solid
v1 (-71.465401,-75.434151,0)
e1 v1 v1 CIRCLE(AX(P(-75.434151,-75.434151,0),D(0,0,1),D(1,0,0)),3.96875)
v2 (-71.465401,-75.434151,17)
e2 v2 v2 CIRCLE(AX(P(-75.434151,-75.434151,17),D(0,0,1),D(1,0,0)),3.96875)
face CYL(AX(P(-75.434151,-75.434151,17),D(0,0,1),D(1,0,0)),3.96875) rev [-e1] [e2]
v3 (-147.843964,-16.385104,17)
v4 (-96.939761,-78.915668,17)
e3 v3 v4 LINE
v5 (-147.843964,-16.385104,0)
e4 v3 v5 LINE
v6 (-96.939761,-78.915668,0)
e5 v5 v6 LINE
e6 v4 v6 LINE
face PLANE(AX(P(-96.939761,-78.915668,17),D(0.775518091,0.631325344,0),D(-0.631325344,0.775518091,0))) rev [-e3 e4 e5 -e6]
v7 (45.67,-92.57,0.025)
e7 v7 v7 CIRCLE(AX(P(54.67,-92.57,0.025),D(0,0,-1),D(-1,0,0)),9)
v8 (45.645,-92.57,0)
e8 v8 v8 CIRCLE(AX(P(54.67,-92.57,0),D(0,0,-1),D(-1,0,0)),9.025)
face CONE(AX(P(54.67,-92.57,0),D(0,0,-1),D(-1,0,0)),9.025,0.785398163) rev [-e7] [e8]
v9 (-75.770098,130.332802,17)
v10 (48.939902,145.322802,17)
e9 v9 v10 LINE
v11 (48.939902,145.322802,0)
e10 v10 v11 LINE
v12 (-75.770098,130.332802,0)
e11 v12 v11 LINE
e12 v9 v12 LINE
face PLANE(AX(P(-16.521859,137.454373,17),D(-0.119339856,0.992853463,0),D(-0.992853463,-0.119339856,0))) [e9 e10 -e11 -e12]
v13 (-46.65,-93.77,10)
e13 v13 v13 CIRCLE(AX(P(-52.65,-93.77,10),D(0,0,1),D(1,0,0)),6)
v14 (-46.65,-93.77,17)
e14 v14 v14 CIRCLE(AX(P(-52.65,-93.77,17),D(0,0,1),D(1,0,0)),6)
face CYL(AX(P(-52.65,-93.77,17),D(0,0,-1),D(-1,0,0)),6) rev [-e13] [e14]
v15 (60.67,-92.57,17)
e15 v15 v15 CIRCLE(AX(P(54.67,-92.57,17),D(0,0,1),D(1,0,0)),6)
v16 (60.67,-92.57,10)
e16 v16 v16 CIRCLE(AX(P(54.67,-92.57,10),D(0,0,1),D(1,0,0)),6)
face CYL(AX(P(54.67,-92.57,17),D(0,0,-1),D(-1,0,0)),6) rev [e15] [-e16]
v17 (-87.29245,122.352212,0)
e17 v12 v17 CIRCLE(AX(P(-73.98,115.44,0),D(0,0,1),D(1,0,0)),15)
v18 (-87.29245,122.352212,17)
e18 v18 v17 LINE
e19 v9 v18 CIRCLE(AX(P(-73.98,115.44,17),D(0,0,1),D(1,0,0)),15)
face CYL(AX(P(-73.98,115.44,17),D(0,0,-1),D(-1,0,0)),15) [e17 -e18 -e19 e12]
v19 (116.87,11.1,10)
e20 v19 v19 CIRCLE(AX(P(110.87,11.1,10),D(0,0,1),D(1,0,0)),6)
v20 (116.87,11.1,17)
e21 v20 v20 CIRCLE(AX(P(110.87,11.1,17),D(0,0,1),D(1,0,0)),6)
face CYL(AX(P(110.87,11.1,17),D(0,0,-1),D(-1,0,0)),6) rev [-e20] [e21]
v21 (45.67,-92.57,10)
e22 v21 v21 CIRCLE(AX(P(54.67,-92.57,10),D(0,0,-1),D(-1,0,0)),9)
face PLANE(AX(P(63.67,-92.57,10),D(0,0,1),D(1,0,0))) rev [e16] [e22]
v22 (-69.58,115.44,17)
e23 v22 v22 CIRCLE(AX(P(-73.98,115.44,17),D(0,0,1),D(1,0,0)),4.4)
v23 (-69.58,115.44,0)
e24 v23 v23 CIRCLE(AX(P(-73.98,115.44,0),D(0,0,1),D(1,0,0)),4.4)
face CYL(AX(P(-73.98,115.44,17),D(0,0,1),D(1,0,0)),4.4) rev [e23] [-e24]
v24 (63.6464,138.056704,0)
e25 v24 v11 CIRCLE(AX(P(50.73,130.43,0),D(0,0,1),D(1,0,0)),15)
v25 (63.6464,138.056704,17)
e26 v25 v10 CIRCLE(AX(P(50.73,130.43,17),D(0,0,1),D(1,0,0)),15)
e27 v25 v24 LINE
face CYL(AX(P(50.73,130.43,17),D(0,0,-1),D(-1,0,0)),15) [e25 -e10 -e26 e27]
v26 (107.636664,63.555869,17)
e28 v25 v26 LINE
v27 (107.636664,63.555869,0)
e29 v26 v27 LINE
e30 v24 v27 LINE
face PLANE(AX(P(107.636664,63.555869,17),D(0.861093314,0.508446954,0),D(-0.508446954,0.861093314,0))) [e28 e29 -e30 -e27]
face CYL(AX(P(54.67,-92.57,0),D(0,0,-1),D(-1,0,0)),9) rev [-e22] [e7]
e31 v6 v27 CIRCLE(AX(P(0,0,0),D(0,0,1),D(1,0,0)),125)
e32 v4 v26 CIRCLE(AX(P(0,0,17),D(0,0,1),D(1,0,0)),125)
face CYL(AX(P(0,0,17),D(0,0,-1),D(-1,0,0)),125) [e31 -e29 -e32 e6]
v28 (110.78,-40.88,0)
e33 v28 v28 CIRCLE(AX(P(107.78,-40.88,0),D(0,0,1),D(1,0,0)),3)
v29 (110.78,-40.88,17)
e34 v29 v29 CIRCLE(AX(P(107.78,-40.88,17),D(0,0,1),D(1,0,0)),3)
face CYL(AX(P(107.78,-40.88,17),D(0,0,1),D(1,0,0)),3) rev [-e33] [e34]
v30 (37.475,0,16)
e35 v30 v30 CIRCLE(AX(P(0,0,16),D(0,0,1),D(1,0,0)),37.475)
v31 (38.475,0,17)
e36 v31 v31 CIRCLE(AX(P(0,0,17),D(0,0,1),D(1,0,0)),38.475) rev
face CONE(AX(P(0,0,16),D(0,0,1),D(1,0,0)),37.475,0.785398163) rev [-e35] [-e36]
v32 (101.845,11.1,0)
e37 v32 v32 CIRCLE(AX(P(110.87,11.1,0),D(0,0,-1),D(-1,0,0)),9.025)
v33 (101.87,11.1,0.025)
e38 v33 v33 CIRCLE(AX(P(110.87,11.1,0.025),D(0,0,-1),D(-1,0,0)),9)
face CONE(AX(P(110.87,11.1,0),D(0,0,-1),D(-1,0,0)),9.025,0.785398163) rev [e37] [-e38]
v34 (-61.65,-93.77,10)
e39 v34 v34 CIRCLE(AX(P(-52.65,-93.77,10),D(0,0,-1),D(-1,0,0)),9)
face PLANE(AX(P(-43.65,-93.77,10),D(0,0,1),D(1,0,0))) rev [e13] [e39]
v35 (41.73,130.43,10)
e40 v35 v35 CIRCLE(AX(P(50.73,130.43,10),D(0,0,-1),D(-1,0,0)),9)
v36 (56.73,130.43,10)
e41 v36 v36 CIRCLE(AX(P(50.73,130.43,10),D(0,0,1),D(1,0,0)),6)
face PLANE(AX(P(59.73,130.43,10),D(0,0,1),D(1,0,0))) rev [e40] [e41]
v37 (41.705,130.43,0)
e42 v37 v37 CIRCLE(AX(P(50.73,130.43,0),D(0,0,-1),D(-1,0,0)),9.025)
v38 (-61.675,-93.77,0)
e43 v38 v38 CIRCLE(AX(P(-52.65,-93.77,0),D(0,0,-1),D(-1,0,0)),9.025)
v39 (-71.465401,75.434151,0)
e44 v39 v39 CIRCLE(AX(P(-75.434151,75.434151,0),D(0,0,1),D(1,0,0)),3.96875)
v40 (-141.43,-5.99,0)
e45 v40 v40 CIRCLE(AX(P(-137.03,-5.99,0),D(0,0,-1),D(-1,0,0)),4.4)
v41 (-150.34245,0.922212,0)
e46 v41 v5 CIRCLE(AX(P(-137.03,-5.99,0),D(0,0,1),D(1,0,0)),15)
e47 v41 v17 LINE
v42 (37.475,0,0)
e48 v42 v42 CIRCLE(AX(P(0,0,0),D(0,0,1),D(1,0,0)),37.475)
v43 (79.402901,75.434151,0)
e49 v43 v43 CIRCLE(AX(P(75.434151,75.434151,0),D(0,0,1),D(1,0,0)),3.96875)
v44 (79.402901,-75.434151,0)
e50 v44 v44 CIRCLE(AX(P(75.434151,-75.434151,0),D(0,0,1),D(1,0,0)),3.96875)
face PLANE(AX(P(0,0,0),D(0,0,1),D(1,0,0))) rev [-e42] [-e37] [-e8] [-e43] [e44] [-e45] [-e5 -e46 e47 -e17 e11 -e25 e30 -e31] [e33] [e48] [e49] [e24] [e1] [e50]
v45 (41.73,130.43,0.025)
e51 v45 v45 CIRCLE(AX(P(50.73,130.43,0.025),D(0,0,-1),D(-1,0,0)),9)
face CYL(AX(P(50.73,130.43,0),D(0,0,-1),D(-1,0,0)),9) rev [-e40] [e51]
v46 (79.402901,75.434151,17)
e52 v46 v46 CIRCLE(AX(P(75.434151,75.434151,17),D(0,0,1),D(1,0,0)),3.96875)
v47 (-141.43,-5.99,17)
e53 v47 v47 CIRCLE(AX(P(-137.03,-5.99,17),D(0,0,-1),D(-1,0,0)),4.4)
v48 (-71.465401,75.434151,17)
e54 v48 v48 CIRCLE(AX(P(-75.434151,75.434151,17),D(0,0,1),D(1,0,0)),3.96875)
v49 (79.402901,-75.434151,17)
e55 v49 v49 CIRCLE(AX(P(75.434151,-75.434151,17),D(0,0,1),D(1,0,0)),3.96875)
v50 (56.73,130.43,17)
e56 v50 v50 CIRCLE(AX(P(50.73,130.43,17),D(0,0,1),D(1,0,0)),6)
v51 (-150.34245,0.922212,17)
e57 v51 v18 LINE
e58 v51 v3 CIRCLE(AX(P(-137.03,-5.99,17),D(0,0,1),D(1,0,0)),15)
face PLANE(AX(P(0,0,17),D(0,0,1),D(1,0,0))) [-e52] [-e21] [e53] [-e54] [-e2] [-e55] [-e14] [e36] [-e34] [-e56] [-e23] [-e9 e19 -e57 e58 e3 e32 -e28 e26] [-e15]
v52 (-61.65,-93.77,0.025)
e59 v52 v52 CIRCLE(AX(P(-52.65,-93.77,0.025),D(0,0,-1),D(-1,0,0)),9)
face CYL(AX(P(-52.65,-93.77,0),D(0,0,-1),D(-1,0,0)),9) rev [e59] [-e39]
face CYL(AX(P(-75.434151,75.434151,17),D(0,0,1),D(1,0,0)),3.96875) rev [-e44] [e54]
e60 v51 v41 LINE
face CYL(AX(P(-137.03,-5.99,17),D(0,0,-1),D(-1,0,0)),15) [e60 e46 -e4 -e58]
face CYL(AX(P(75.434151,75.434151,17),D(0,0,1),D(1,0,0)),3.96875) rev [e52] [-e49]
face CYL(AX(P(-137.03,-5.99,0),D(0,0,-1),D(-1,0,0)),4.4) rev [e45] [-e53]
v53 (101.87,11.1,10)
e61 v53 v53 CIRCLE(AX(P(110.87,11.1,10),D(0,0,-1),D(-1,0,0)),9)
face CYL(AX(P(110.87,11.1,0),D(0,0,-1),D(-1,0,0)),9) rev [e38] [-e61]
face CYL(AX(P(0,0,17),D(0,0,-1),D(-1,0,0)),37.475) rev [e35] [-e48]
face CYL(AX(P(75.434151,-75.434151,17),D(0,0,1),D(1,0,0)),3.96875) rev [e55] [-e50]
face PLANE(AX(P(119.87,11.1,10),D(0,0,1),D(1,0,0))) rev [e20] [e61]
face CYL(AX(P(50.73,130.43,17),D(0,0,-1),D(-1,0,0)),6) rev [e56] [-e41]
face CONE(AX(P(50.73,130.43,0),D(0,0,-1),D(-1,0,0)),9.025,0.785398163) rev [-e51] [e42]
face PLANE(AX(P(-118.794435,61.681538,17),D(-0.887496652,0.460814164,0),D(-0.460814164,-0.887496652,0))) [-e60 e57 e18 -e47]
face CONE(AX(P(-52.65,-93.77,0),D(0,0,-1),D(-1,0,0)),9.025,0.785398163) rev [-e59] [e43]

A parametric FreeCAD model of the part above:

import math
import FreeCAD as App
import Part
import Sketcher

V = App.Vector
Q = App.Units.Quantity


def edges_at(feature, points):
    """Names of the edges that pass closest to the given points."""
    edges = feature.Shape.Edges
    near = lambda p: min(range(len(edges)), key=lambda i: edges[i].distToShape(Part.Vertex(*p))[0])
    return sorted({f"Edge{near(p) + 1}" for p in points})

doc = App.newDocument("Part")
body = doc.addObject("PartDesign::Body", "Body")

# Sketch on XY plane
sketch1 = body.newObject("Sketcher::SketchObject", "Sketch")
sketch1.AttachmentSupport = (doc.getObject("XY_Plane"), [""])
sketch1.MapMode = "FlatFace"
sketch1.addGeometry([
    Part.LineSegment(V(-147.8, -16.4, 0), V(-96.9, -78.9, 0)),  # 0
    Part.ArcOfCircle(Part.Circle(V(0, 0, 0), V(0, 0, 1), 125), math.radians(-141), math.radians(31)),  # 1
    Part.LineSegment(V(107.6, 63.6, 0), V(63.6, 138.1, 0)),  # 2
    Part.ArcOfCircle(Part.Circle(V(50.7, 130.4, 0), V(0, 0, 1), 15), math.radians(31), math.radians(97)),  # 3
    Part.LineSegment(V(48.9, 145.3, 0), V(-75.8, 130.3, 0)),  # 4
    Part.ArcOfCircle(Part.Circle(V(-74, 115.4, 0), V(0, 0, 1), 15), math.radians(97), math.radians(153)),  # 5
    Part.LineSegment(V(-87.3, 122.4, 0), V(-150.3, 0.9, 0)),  # 6
    Part.ArcOfCircle(Part.Circle(V(-137, -6, 0), V(0, 0, 1), 15), math.radians(153), math.radians(224)),  # 7
    Part.Circle(V(-52.6, -93.8, 0), V(0, 0, 1), 6),  # 8
    Part.Circle(V(-137, -6, 0), V(0, 0, 1), 4),  # 9
    Part.Circle(V(54.7, -92.6, 0), V(0, 0, 1), 6),  # 10
    Part.Circle(V(107.8, -40.9, 0), V(0, 0, 1), 1.7),  # 11
    Part.Circle(V(0, 0, 0), V(0, 0, 1), 37.5),  # 12
    Part.Circle(V(110.9, 11.1, 0), V(0, 0, 1), 6),  # 13
    Part.Circle(V(-74, 115.4, 0), V(0, 0, 1), 4),  # 14
    Part.Circle(V(50.7, 130.4, 0), V(0, 0, 1), 6),  # 15
], False)
sketch1.addConstraint([
    Sketcher.Constraint("Tangent", 0, 2, 1, 1),
    Sketcher.Constraint("Tangent", 1, 2, 2, 1),
    Sketcher.Constraint("Tangent", 2, 2, 3, 1),
    Sketcher.Constraint("Tangent", 3, 2, 4, 1),
    Sketcher.Constraint("Tangent", 4, 2, 5, 1),
    Sketcher.Constraint("Tangent", 5, 2, 6, 1),
    Sketcher.Constraint("Tangent", 6, 2, 7, 1),
    Sketcher.Constraint("Coincident", 7, 2, 0, 1),
    Sketcher.Constraint("Coincident", 1, 3, -1, 1),
    Sketcher.Constraint("Coincident", 12, 3, -1, 1),
    Sketcher.Constraint("Coincident", 9, 3, 7, 3),
    Sketcher.Constraint("Coincident", 14, 3, 5, 3),
    Sketcher.Constraint("Coincident", 15, 3, 3, 3),
    Sketcher.Constraint("Equal", 3, 5),
    Sketcher.Constraint("Equal", 5, 7),
    Sketcher.Constraint("Equal", 8, 10),
    Sketcher.Constraint("Equal", 10, 13),
    Sketcher.Constraint("Equal", 9, 14),
    Sketcher.Constraint("Equal", 13, 15),
    Sketcher.Constraint("Diameter", 8, Q("12 mm")),
    Sketcher.Constraint("Diameter", 9, Q("8 mm")),
    Sketcher.Constraint("Radius", 1, Q("125 mm")),
    Sketcher.Constraint("Radius", 3, Q("15 mm")),
    Sketcher.Constraint("Diameter", 12, Q("74.95 mm")),
    Sketcher.Constraint("DistanceY", 10, 3, 3, 3, Q("223 mm")),
    Sketcher.Constraint("DistanceY", -1, 1, 13, 3, Q("11.1 mm")),
    Sketcher.Constraint("DistanceY", 8, 3, 3, 3, Q("224.2 mm")),
    Sketcher.Constraint("DistanceX", 7, 3, 10, 3, Q("191.7 mm")),
    Sketcher.Constraint("DistanceX", 10, 3, 13, 3, Q("56.2 mm")),
    Sketcher.Constraint("DistanceX", -1, 1, 3, 3, Q("50.73 mm")),
    Sketcher.Constraint("DistanceY", -1, 1, 3, 3, Q("130.43 mm")),
    Sketcher.Constraint("DistanceX", 5, 3, -1, 1, Q("73.98 mm")),
    Sketcher.Constraint("DistanceY", -1, 1, 5, 3, Q("115.44 mm")),
    Sketcher.Constraint("DistanceX", 7, 3, -1, 1, Q("137.03 mm")),
    Sketcher.Constraint("DistanceY", 7, 3, -1, 1, Q("5.99 mm")),
    Sketcher.Constraint("DistanceX", 8, 3, -1, 1, Q("52.65 mm")),
    Sketcher.Constraint("DistanceX", -1, 1, 11, 3, Q("107.78 mm")),
    Sketcher.Constraint("DistanceY", 11, 3, -1, 1, Q("40.88 mm")),
    Sketcher.Constraint("Diameter", 11, Q("3.375808 mm")),
    Sketcher.Constraint("DistanceX", 0, 2, -1, 1, Q("96.939761 mm")),
])
pad1 = body.newObject("PartDesign::Pad", "Pad")
pad1.Profile = sketch1
pad1.Length = 17

# Sketch on XY plane
sketch2 = body.newObject("Sketcher::SketchObject", "Sketch001")
sketch2.AttachmentSupport = (doc.getObject("XY_Plane"), [""])
sketch2.MapMode = "FlatFace"
sketch2.AttachmentOffset = App.Placement(V(0, 0, 17), App.Rotation())
sketch2.addGeometry(Part.Circle(V(-74, 115.4, 0), V(0, 0, 1), 4.4), False)
sketch2.addConstraint([
    Sketcher.Constraint("Diameter", 0, Q("8.8 mm")),
    Sketcher.Constraint("DistanceX", 0, 3, -1, 1, Q("73.98 mm")),
    Sketcher.Constraint("DistanceY", -1, 1, 0, 3, Q("115.44 mm")),
])
doc.recompute()
hole = body.newObject("PartDesign::Hole", "Hole")
hole.Profile = sketch2
hole.ThreadType = "None"
hole.Diameter = 8.8
hole.DepthType = "ThroughAll"

# Sketch on XY plane
sketch3 = body.newObject("Sketcher::SketchObject", "Sketch002")
sketch3.AttachmentSupport = (doc.getObject("XY_Plane"), [""])
sketch3.MapMode = "FlatFace"
sketch3.addGeometry(Part.Circle(V(-137, -6, 0), V(0, 0, 1), 4.4), False)
sketch3.addConstraint([
    Sketcher.Constraint("Diameter", 0, Q("8.8 mm")),
    Sketcher.Constraint("DistanceX", 0, 3, -1, 1, Q("137.03 mm")),
    Sketcher.Constraint("DistanceY", 0, 3, -1, 1, Q("5.99 mm")),
])
doc.recompute()
hole2 = body.newObject("PartDesign::Hole", "Hole001")
hole2.Profile = sketch3
hole2.ThreadType = "None"
hole2.Diameter = 8.8
hole2.DepthType = "ThroughAll"
hole2.Reversed = True

# Sketch on XY plane
sketch4 = body.newObject("Sketcher::SketchObject", "Sketch003")
sketch4.AttachmentSupport = (doc.getObject("XY_Plane"), [""])
sketch4.MapMode = "FlatFace"
sketch4.AttachmentOffset = App.Placement(V(0, 0, 17), App.Rotation())
sketch4.addGeometry(Part.Circle(V(107.8, -40.9, 0), V(0, 0, 1), 3), False)
sketch4.addConstraint([
    Sketcher.Constraint("Diameter", 0, Q("6 mm")),
    Sketcher.Constraint("DistanceX", -1, 1, 0, 3, Q("107.78 mm")),
    Sketcher.Constraint("DistanceY", 0, 3, -1, 1, Q("40.88 mm")),
])
doc.recompute()
hole3 = body.newObject("PartDesign::Hole", "Hole002")
hole3.Profile = sketch4
hole3.ThreadType = "None"
hole3.Diameter = 6
hole3.DepthType = "ThroughAll"

# Sketch on XY plane
sketch5 = body.newObject("Sketcher::SketchObject", "Sketch004")
sketch5.AttachmentSupport = (doc.getObject("XY_Plane"), [""])
sketch5.MapMode = "FlatFace"
sketch5.AttachmentOffset = App.Placement(V(0, 0, 17), App.Rotation())
sketch5.addGeometry([
    Part.Circle(V(-75.4, 75.4, 0), V(0, 0, 1), 4),
    Part.Circle(V(-75.4, -75.4, 0), V(0, 0, 1), 4),
    Part.Circle(V(75.4, -75.4, 0), V(0, 0, 1), 4),
    Part.Circle(V(75.4, 75.4, 0), V(0, 0, 1), 4),
], False)
sketch5.addConstraint([
    Sketcher.Constraint("Equal", 0, 1),
    Sketcher.Constraint("Equal", 1, 2),
    Sketcher.Constraint("Equal", 2, 3),
    Sketcher.Constraint("Symmetric", 0, 3, 2, 3, -1, 1),
    Sketcher.Constraint("Symmetric", 1, 3, 3, 3, -1, 1),
    Sketcher.Constraint("Symmetric", 1, 3, 2, 3, -2),
    Sketcher.Constraint("Diameter", 0, Q("7.9375 mm")),
    Sketcher.Constraint("DistanceX", 0, 3, -1, 1, Q("75.434151 mm")),
    Sketcher.Constraint("DistanceY", -1, 1, 0, 3, Q("75.434151 mm")),
])
doc.recompute()
hole4 = body.newObject("PartDesign::Hole", "Hole003")
hole4.Profile = sketch5
hole4.ThreadType = "None"
hole4.Diameter = 7.9375
hole4.DepthType = "ThroughAll"
doc.recompute()

chamfer = body.newObject("PartDesign::Chamfer", "Chamfer")
chamfer.Base = (hole4, edges_at(hole4, [(-37.475, 0, 17)]))
chamfer.Size = 1

# Sketch on YZ plane
sketch6 = body.newObject("Sketcher::SketchObject", "Sketch005")
sketch6.AttachmentSupport = (doc.getObject("YZ_Plane"), [""])
sketch6.MapMode = "FlatFace"
sketch6.AttachmentOffset = App.Placement(V(0, 0, 50.73), App.Rotation())
sketch6.addGeometry([
    Part.LineSegment(V(130.43, 17, 0), V(130.43, 0, 0)),  # 0
    Part.LineSegment(V(130.43, 0, 0), V(139.455, 0, 0)),  # 1
    Part.LineSegment(V(139.455, 0, 0), V(139.43, 0.025, 0)),  # 2
    Part.LineSegment(V(139.43, 0.025, 0), V(139.43, 10, 0)),  # 3
    Part.LineSegment(V(139.43, 10, 0), V(135.68, 10, 0)),  # 4
    Part.LineSegment(V(135.68, 10, 0), V(135.68, 17, 0)),  # 5
    Part.LineSegment(V(135.68, 17, 0), V(130.43, 17, 0)),  # 6
], False)
sketch6.addGeometry(Part.LineSegment(V(130.43, 0, 0), V(130.43, 17, 0)), True)  # axis
sketch6.addConstraint([
    Sketcher.Constraint("Coincident", 0, 2, 1, 1),
    Sketcher.Constraint("Coincident", 1, 2, 2, 1),
    Sketcher.Constraint("Coincident", 2, 2, 3, 1),
    Sketcher.Constraint("Coincident", 3, 2, 4, 1),
    Sketcher.Constraint("Coincident", 4, 2, 5, 1),
    Sketcher.Constraint("Coincident", 5, 2, 6, 1),
    Sketcher.Constraint("Coincident", 6, 2, 0, 1),
    Sketcher.Constraint("Vertical", 0),
    Sketcher.Constraint("Horizontal", 1),
    Sketcher.Constraint("Vertical", 3),
    Sketcher.Constraint("Horizontal", 4),
    Sketcher.Constraint("Vertical", 5),
    Sketcher.Constraint("Horizontal", 6),
    Sketcher.Constraint("Vertical", 7),
    Sketcher.Constraint("Coincident", 7, 1, 0, 2),
    Sketcher.Constraint("PointOnObject", 0, 2, -1),
    Sketcher.Constraint("Horizontal", 5, 2, 7, 2),
    Sketcher.Constraint("DistanceY", 0, 2, 0, 1, Q("17 mm")),
    Sketcher.Constraint("DistanceY", 5, 1, 5, 2, Q("7 mm")),
    Sketcher.Constraint("Angle", 2, Q("135 deg")),
    Sketcher.Constraint("DistanceX", 0, 2, 2, 2, Q("9 mm")),
    Sketcher.Constraint("DistanceX", 4, 2, 4, 1, Q("3.75 mm")),
    Sketcher.Constraint("DistanceX", 1, 1, 1, 2, Q("9.025 mm")),
    Sketcher.Constraint("DistanceX", -1, 1, 0, 2, Q("130.43 mm")),
])
groove = body.newObject("PartDesign::Groove", "Groove")
groove.Profile = sketch6
groove.ReferenceAxis = (sketch6, ["Axis0"])
groove.Angle = 360
doc.recompute()

datumline = body.newObject("PartDesign::Line", "DatumLine")
datumline.Placement = App.Placement(V(0, 0, 0), App.Rotation(V(0, 0, 1), V(0.450055049, -0.893000814, 0)))
linearpattern = body.newObject("PartDesign::LinearPattern", "LinearPattern")
linearpattern.Originals = [groove]
linearpattern.Direction = (datumline, [""])
linearpattern.Mode = "offset"
linearpattern.Offset = 133.628098
linearpattern.Occurrences = 2
body.Tip = linearpattern
doc.recompute()

datumline2 = body.newObject("PartDesign::Line", "DatumLine001")
datumline2.Placement = App.Placement(V(0, 0, 0), App.Rotation(V(0, 0, 1), V(0.017665404, -0.999843955, 0)))
linearpattern2 = body.newObject("PartDesign::LinearPattern", "LinearPattern001")
linearpattern2.Originals = [groove]
linearpattern2.Direction = (datumline2, [""])
linearpattern2.Mode = "offset"
linearpattern2.Offset = 223.034804
linearpattern2.Occurrences = 2
body.Tip = linearpattern2
doc.recompute()

datumline3 = body.newObject("PartDesign::Line", "DatumLine002")
datumline3.Placement = App.Placement(V(0, 0, 0), App.Rotation(V(0, 0, 1), V(-0.418734511, -0.908108699, 0)))
linearpattern3 = body.newObject("PartDesign::LinearPattern", "LinearPattern002")
linearpattern3.Originals = [groove]
linearpattern3.Direction = (datumline3, [""])
linearpattern3.Mode = "offset"
linearpattern3.Offset = 246.886744
linearpattern3.Occurrences = 2
body.Tip = linearpattern3

doc.recompute()
